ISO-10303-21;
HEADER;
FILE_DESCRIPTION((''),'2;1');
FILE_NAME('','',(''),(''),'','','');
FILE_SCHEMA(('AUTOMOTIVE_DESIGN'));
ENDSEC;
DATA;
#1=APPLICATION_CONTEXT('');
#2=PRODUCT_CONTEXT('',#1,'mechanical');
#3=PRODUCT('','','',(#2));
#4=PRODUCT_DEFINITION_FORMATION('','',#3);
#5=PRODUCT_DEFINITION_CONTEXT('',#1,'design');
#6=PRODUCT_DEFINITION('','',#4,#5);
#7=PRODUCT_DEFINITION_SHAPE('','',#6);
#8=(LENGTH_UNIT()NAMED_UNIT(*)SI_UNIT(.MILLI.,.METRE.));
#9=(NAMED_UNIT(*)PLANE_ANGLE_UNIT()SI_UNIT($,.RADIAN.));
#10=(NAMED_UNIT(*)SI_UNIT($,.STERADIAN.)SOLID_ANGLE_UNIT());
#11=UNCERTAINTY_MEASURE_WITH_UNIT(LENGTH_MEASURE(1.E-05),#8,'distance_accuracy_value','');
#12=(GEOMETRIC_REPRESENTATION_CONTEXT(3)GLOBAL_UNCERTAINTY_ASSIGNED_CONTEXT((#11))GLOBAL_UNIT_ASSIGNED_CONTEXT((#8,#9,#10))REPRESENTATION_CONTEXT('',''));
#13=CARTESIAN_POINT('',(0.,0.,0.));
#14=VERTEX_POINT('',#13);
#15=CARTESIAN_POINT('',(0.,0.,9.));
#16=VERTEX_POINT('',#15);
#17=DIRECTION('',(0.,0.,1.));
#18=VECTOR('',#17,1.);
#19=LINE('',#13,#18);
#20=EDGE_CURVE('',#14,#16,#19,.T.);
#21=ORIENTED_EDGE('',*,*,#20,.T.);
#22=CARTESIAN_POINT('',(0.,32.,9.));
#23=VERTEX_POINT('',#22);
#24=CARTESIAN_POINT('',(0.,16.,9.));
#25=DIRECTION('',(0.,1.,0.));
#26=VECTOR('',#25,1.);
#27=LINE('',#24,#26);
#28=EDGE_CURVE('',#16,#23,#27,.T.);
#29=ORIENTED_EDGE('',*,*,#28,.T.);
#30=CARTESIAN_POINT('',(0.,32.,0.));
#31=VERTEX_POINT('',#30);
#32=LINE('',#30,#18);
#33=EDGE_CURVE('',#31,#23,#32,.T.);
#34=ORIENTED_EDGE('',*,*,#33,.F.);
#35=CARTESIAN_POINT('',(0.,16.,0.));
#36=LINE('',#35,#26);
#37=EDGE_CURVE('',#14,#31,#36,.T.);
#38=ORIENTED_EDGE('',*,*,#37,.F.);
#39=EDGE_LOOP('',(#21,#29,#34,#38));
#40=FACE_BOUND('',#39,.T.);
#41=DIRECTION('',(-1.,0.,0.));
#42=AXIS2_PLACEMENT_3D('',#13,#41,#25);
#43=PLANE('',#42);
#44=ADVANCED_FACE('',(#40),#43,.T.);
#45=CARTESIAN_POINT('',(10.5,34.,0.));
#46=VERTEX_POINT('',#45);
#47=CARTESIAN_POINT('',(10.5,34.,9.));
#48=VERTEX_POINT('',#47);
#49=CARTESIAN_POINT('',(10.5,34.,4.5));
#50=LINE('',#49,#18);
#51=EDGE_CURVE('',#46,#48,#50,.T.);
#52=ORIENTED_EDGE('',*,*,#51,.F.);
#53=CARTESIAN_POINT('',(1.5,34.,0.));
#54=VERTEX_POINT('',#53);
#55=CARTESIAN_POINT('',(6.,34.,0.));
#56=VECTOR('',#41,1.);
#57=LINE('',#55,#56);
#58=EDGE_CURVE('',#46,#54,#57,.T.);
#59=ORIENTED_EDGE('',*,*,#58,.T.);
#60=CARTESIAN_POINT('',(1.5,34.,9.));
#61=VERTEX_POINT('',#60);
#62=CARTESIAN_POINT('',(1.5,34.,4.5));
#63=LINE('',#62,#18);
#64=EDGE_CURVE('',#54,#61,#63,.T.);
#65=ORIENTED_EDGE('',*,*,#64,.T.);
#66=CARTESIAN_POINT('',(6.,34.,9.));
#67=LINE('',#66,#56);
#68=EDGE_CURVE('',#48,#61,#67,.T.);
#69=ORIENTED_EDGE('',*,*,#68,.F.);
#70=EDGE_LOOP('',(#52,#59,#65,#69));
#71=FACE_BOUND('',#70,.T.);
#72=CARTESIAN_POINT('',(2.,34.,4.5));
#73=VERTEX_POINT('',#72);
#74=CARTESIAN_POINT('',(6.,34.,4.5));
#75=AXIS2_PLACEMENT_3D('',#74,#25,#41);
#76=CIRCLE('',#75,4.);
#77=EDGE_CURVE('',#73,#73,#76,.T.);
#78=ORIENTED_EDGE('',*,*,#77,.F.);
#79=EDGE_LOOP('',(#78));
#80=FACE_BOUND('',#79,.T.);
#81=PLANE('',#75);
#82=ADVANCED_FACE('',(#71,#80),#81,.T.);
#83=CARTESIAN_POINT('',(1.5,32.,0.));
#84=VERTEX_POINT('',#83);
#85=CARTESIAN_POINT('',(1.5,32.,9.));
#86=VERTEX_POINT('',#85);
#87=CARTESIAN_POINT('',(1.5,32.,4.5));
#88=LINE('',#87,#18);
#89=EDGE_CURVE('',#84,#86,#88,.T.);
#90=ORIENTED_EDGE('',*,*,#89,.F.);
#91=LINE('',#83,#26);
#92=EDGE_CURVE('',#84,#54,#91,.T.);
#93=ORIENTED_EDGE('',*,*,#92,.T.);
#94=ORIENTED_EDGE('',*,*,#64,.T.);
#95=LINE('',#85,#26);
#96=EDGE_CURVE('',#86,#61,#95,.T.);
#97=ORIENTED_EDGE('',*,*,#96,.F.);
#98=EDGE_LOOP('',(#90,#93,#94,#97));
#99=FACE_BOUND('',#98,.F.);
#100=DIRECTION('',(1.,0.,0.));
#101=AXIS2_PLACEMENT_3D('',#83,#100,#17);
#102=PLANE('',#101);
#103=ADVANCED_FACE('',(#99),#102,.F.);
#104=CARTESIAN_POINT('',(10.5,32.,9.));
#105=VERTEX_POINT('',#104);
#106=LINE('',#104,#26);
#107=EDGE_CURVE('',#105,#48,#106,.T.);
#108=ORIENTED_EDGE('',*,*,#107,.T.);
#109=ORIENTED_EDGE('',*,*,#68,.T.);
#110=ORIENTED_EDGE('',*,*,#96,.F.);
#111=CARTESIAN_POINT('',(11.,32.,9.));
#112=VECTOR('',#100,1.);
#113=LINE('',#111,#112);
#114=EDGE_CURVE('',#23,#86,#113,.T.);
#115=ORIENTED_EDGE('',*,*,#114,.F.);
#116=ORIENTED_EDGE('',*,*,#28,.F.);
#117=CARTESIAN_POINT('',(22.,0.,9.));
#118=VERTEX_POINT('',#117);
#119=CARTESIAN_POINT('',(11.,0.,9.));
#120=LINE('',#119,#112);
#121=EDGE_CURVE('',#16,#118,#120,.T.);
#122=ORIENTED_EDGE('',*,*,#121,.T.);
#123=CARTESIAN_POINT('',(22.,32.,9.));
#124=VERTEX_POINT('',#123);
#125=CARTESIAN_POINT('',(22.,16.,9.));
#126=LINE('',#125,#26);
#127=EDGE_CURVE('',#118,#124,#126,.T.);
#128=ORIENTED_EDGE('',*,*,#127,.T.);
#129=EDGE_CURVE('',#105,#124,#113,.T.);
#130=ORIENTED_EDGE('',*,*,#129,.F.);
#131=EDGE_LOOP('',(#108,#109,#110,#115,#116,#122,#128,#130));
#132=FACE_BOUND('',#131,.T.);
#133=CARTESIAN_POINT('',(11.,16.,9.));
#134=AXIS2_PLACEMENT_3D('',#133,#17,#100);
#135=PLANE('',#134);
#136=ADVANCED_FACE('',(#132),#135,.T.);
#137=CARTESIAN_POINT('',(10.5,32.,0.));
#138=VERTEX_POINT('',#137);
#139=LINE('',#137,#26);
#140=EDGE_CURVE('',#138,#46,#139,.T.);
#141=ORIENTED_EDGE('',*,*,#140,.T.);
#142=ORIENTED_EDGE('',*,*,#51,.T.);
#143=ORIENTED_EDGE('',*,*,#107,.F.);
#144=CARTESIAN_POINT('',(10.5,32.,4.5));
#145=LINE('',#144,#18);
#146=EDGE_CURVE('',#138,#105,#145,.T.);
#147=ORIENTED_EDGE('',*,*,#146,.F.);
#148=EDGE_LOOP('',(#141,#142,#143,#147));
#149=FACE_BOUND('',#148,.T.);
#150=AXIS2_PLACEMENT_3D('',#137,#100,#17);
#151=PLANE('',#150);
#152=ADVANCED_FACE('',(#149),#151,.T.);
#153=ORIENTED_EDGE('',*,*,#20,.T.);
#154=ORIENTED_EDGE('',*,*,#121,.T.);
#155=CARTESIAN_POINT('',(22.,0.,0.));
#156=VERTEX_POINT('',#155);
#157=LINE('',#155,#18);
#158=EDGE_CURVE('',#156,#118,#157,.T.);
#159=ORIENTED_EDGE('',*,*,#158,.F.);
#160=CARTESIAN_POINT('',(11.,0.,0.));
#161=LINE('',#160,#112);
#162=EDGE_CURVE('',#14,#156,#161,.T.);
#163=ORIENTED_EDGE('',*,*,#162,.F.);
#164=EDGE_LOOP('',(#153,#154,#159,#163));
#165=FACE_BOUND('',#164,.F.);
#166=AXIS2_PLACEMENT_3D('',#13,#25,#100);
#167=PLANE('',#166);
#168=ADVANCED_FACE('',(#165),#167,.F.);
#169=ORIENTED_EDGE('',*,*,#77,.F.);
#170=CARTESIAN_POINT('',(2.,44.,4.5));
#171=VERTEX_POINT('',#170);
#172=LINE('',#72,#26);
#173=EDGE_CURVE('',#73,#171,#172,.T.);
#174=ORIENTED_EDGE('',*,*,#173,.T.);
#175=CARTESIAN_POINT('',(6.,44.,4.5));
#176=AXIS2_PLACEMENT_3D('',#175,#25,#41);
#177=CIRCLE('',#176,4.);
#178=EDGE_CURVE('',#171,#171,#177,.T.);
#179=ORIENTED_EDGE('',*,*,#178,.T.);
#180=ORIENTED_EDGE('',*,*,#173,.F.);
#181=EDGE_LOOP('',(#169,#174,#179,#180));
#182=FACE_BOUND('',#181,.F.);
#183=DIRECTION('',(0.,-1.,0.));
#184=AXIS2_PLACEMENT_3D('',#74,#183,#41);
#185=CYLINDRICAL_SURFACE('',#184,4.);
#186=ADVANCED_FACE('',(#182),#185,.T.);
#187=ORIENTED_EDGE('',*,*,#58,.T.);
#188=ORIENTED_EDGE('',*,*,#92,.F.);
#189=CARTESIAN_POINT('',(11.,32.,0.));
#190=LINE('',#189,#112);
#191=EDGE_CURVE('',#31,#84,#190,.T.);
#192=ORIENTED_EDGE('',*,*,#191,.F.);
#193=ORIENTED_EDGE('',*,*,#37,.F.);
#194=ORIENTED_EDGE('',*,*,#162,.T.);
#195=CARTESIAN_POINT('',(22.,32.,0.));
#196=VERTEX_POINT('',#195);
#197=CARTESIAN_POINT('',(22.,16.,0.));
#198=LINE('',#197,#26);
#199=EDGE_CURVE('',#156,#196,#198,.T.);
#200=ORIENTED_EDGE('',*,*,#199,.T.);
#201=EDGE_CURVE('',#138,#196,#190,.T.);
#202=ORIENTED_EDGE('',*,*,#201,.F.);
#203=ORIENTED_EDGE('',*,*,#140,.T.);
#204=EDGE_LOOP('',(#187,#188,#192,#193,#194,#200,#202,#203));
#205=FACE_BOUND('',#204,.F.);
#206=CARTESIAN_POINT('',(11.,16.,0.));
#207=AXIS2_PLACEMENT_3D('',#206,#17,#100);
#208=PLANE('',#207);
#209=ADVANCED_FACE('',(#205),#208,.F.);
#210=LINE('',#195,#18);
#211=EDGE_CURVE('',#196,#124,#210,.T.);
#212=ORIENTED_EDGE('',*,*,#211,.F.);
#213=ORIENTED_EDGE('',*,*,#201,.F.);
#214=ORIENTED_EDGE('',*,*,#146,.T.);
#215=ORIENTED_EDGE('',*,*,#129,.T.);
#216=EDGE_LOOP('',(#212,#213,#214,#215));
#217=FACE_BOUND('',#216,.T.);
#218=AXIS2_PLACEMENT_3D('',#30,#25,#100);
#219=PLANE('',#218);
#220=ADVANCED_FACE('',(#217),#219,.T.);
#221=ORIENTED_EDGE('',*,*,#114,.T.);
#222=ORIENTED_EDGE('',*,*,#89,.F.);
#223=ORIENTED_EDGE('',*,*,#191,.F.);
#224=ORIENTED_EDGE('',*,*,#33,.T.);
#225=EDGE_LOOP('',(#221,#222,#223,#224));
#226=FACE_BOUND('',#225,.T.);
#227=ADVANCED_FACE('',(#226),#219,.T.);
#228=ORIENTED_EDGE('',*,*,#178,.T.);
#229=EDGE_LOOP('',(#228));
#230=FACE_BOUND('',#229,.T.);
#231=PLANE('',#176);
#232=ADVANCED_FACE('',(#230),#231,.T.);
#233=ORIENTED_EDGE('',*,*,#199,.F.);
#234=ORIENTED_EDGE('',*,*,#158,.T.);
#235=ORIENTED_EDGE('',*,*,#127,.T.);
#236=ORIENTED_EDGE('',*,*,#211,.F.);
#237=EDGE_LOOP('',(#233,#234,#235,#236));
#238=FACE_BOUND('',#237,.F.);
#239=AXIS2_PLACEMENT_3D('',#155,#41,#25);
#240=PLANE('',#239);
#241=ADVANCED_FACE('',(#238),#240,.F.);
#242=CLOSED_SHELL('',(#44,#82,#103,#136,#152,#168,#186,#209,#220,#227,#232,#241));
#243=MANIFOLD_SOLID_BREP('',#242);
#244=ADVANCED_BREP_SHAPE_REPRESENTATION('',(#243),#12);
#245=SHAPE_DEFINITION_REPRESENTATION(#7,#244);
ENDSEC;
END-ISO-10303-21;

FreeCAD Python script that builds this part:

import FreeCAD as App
import Part
import Sketcher

V = App.Vector
Q = App.Units.Quantity


def add_polygon(sketch, points):
    """Adds a closed chain of lines whose ends are joined by coincident constraints."""
    first, n = sketch.GeometryCount, len(points)
    for a, b in zip(points, points[1:] + points[:1]):
        sketch.addGeometry(Part.LineSegment(App.Vector(*a, 0), App.Vector(*b, 0)), False)
    for i in range(n):
        sketch.addConstraint(Sketcher.Constraint("Coincident", first + i, 2, first + (i + 1) % n, 1))

doc = App.newDocument("Part")
body = doc.addObject("PartDesign::Body", "Body")

# Sketch on XY plane
sketch1 = body.newObject("Sketcher::SketchObject", "Sketch")
sketch1.AttachmentSupport = (doc.getObject("XY_Plane"), [""])
sketch1.MapMode = "FlatFace"
add_polygon(sketch1, [(0, 32), (0, 0), (22, 0), (22, 32)])  # lines 0-3
sketch1.addConstraint(Sketcher.Constraint("Vertical", 0))
sketch1.addConstraint(Sketcher.Constraint("Horizontal", 1))
sketch1.addConstraint(Sketcher.Constraint("Vertical", 2))
sketch1.addConstraint(Sketcher.Constraint("Horizontal", 3))
sketch1.addConstraint(Sketcher.Constraint("Coincident", 0, 2, -1, 1))
sketch1.addConstraint(Sketcher.Constraint("DistanceX", 1, 1, 1, 2, Q("22 mm")))
sketch1.addConstraint(Sketcher.Constraint("DistanceY", 0, 2, 0, 1, Q("32 mm")))
pad1 = body.newObject("PartDesign::Pad", "Pad")
pad1.Profile = sketch1
pad1.Length = 9

# Sketch on XZ plane
sketch2 = body.newObject("Sketcher::SketchObject", "Sketch001")
sketch2.AttachmentSupport = (doc.getObject("XZ_Plane"), [""])
sketch2.MapMode = "FlatFace"
sketch2.AttachmentOffset = App.Placement(V(0, 0, -32), App.Rotation())
add_polygon(sketch2, [(10, 9), (10, 0), (2, 0), (2, 9)])  # lines 0-3
sketch2.addConstraint(Sketcher.Constraint("Vertical", 0))
sketch2.addConstraint(Sketcher.Constraint("Horizontal", 1))
sketch2.addConstraint(Sketcher.Constraint("Vertical", 2))
sketch2.addConstraint(Sketcher.Constraint("Horizontal", 3))
sketch2.addConstraint(Sketcher.Constraint("PointOnObject", 0, 2, -1))
sketch2.addConstraint(Sketcher.Constraint("Equal", 3, 0))
sketch2.addConstraint(Sketcher.Constraint("DistanceX", 1, 2, 1, 1, Q("9 mm")))
sketch2.addConstraint(Sketcher.Constraint("DistanceX", -1, 1, 0, 2, Q("10.5 mm")))
pad2 = body.newObject("PartDesign::Pad", "Pad001")
pad2.Profile = sketch2
pad2.Length = 2
pad2.Reversed = True

# Sketch on XZ plane
sketch3 = body.newObject("Sketcher::SketchObject", "Sketch002")
sketch3.AttachmentSupport = (doc.getObject("XZ_Plane"), [""])
sketch3.MapMode = "FlatFace"
sketch3.AttachmentOffset = App.Placement(V(0, 0, -34), App.Rotation())
sketch3.addGeometry(Part.Circle(V(6, 4.5, 0), V(0, 0, 1), 4), False)
sketch3.addConstraint(Sketcher.Constraint("Diameter", 0, Q("8 mm")))
sketch3.addConstraint(Sketcher.Constraint("DistanceX", -1, 1, 0, 3, Q("6 mm")))
sketch3.addConstraint(Sketcher.Constraint("DistanceY", -1, 1, 0, 3, Q("4.5 mm")))
pad3 = body.newObject("PartDesign::Pad", "Pad002")
pad3.Profile = sketch3
pad3.Length = 10
pad3.Reversed = True

doc.recompute()
